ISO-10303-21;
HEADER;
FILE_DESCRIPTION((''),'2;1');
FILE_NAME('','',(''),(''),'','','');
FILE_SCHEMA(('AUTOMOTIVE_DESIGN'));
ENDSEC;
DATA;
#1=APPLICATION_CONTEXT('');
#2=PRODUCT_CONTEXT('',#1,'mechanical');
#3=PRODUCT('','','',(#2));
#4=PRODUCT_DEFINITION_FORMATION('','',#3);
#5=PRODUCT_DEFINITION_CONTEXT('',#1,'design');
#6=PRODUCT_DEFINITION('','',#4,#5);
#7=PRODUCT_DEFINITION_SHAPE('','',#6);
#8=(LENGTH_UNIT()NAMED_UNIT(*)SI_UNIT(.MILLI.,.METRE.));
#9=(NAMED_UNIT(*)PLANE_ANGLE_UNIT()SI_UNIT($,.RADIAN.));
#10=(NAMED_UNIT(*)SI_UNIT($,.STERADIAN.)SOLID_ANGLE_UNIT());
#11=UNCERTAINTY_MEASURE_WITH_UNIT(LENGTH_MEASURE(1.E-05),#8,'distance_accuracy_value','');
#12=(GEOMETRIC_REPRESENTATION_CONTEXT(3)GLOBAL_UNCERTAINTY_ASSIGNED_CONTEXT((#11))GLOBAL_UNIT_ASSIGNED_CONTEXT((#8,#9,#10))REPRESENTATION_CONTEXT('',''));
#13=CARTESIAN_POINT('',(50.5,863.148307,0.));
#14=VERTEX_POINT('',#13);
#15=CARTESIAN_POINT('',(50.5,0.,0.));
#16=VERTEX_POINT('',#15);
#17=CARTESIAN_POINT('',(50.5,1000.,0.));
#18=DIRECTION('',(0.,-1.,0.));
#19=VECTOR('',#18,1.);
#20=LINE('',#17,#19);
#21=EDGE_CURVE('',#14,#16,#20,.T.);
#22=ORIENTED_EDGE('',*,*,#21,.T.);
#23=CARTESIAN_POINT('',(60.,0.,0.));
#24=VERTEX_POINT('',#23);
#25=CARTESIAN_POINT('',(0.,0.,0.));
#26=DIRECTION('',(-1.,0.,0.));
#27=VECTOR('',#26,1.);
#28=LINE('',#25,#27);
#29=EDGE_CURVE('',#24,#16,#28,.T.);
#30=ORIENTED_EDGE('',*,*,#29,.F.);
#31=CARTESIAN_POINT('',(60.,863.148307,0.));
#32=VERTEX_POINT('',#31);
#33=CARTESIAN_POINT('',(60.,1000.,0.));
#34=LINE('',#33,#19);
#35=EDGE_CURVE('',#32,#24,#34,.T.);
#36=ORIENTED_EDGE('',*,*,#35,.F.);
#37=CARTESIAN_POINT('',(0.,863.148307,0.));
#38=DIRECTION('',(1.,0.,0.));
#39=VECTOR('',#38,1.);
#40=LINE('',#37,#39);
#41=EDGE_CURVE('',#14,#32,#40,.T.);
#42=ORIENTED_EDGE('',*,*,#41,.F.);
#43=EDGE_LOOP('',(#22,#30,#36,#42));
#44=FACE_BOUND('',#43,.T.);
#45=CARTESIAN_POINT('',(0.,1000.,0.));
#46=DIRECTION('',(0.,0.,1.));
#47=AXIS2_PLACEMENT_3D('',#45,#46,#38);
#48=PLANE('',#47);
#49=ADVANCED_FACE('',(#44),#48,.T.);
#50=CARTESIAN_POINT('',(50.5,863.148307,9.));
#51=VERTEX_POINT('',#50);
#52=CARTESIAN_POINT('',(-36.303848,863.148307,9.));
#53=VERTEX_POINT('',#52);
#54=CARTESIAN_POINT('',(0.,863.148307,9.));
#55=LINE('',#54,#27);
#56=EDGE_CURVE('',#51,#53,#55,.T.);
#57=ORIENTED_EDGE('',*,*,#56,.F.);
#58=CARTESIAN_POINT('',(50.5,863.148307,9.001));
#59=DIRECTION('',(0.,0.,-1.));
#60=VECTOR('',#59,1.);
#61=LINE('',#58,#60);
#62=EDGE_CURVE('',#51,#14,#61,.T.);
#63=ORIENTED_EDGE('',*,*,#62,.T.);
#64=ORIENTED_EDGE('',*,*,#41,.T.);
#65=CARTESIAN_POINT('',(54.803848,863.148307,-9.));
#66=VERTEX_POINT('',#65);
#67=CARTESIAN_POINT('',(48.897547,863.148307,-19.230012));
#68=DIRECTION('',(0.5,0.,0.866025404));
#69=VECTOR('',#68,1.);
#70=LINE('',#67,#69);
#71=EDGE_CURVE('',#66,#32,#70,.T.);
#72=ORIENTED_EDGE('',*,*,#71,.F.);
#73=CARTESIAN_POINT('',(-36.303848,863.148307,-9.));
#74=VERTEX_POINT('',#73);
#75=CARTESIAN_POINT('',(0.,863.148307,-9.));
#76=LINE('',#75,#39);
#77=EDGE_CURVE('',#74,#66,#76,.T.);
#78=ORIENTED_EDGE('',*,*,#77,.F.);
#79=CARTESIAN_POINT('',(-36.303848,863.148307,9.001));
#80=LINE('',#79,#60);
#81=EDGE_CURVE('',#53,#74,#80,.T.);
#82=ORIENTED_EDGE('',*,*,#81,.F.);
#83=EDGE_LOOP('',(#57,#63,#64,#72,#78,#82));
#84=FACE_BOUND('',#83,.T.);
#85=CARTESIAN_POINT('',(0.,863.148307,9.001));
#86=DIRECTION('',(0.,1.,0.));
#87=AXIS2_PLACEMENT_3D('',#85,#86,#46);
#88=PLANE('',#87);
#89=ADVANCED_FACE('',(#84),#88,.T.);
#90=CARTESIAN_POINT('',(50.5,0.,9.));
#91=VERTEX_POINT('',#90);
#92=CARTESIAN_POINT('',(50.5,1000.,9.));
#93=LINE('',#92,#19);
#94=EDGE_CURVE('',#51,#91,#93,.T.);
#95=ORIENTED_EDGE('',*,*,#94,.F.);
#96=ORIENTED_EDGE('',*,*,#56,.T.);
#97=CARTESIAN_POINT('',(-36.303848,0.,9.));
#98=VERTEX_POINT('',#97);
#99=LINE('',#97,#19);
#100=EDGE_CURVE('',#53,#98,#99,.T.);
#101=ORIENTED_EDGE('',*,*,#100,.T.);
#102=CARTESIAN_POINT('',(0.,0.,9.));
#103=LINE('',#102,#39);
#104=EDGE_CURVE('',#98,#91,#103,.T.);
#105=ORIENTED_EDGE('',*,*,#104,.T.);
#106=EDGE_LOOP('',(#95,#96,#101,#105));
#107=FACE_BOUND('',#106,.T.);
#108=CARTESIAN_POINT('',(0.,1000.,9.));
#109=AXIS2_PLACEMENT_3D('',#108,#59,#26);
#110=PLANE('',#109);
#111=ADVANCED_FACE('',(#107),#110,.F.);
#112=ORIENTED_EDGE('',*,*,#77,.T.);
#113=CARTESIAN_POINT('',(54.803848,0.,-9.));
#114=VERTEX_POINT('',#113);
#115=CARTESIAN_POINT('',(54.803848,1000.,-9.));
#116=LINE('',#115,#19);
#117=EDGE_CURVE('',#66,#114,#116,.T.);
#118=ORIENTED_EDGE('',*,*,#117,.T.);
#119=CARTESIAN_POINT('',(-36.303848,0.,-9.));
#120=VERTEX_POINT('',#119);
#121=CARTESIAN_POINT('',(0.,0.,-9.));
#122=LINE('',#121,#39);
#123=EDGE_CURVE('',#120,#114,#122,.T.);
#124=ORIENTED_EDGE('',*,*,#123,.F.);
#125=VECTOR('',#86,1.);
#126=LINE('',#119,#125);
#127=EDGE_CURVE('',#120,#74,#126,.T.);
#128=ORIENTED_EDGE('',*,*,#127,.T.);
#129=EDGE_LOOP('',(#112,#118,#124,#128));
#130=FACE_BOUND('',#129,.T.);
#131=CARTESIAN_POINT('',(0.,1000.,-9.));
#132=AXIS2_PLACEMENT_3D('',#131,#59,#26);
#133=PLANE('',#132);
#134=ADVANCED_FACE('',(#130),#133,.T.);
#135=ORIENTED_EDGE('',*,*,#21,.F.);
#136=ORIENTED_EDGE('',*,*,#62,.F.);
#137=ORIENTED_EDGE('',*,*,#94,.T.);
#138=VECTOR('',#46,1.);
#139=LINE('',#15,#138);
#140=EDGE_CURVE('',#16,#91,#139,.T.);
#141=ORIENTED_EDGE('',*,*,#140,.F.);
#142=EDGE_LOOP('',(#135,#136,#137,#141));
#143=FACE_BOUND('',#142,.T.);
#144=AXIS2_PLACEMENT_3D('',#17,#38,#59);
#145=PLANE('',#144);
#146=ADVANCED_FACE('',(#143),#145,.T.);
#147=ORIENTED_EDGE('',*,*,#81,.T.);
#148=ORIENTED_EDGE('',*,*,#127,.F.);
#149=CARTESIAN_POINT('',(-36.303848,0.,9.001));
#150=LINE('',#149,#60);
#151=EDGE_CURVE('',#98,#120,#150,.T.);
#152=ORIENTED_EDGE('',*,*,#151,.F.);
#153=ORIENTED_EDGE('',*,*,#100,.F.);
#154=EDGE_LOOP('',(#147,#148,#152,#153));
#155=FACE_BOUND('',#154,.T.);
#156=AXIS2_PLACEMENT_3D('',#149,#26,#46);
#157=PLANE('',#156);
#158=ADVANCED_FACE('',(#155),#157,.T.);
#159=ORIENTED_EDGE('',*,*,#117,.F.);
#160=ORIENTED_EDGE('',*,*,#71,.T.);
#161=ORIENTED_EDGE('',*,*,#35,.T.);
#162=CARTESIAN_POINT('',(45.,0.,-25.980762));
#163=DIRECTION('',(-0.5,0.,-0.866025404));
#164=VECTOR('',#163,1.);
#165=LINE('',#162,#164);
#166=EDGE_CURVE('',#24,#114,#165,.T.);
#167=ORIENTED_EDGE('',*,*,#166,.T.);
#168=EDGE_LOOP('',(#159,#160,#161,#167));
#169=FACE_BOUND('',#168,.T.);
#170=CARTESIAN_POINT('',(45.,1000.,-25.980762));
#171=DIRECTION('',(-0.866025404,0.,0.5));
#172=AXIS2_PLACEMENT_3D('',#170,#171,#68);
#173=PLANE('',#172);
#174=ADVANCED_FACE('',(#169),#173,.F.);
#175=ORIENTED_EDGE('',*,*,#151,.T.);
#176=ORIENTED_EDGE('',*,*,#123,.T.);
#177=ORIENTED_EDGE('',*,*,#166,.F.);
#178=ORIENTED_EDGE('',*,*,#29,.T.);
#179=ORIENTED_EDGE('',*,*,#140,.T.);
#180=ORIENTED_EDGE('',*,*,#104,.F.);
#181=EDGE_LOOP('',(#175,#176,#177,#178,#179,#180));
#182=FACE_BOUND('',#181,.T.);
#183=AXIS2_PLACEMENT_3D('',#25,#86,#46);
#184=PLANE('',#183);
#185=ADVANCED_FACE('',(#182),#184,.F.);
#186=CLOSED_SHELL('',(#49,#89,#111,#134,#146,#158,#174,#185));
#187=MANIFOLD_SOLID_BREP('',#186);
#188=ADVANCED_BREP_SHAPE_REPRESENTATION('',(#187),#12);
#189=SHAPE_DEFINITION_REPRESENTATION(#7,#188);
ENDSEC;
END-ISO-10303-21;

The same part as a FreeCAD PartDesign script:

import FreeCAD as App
import Part
import Sketcher
from FreeCAD import Vector
Q = App.Units.Quantity

doc = App.newDocument("Part")
body = doc.addObject("PartDesign::Body", "Body")

# Sketch on XZ plane
sketch1 = body.newObject("Sketcher::SketchObject", "Sketch")
sketch1.AttachmentSupport = (doc.getObject("XZ_Plane"), [""])
sketch1.MapMode = "FlatFace"
sketch1.addGeometry(Part.LineSegment(Vector(-41.5, 0, 0), Vector(-60, 0, 0)), False)
sketch1.addGeometry(Part.LineSegment(Vector(-60, 0, 0), Vector(-60, 9, 0)), False)
sketch1.addGeometry(Part.LineSegment(Vector(-60, 9, 0), Vector(50.5, 9, 0)), False)
sketch1.addGeometry(Part.LineSegment(Vector(50.5, 9, 0), Vector(50.5, 0, 0)), False)
sketch1.addGeometry(Part.LineSegment(Vector(50.5, 0, 0), Vector(60, 0, 0)), False)
sketch1.addGeometry(Part.LineSegment(Vector(60, 0, 0), Vector(54.803848, -9, 0)), False)
sketch1.addGeometry(Part.LineSegment(Vector(54.803848, -9, 0), Vector(-36.303848, -9, 0)), False)
sketch1.addGeometry(Part.LineSegment(Vector(-36.303848, -9, 0), Vector(-41.5, 0, 0)), False)
sketch1.addConstraint(Sketcher.Constraint("Coincident", 0, 2, 1, 1))
sketch1.addConstraint(Sketcher.Constraint("Coincident", 1, 2, 2, 1))
sketch1.addConstraint(Sketcher.Constraint("Coincident", 2, 2, 3, 1))
sketch1.addConstraint(Sketcher.Constraint("Coincident", 3, 2, 4, 1))
sketch1.addConstraint(Sketcher.Constraint("Coincident", 4, 2, 5, 1))
sketch1.addConstraint(Sketcher.Constraint("Coincident", 5, 2, 6, 1))
sketch1.addConstraint(Sketcher.Constraint("Coincident", 6, 2, 7, 1))
sketch1.addConstraint(Sketcher.Constraint("Coincident", 7, 2, 0, 1))
sketch1.addConstraint(Sketcher.Constraint("Horizontal", 0))
sketch1.addConstraint(Sketcher.Constraint("Vertical", 1))
sketch1.addConstraint(Sketcher.Constraint("Horizontal", 2))
sketch1.addConstraint(Sketcher.Constraint("Vertical", 3))
sketch1.addConstraint(Sketcher.Constraint("Horizontal", 4))
sketch1.addConstraint(Sketcher.Constraint("Horizontal", 6))
sketch1.addConstraint(Sketcher.Constraint("Symmetric", 0, 2, 4, 2, -1, 1))
sketch1.addConstraint(Sketcher.Constraint("PointOnObject", 0, 2, -1))
sketch1.addConstraint(Sketcher.Constraint("Equal", 5, 7))
sketch1.addConstraint(Sketcher.Constraint("DistanceY", 1, 1, 1, 2, Q("9 mm")))
sketch1.addConstraint(Sketcher.Constraint("Angle", 5, Q("-120 deg")))
sketch1.addConstraint(Sketcher.Constraint("DistanceX", 0, 2, 0, 1, Q("18.5 mm")))
sketch1.addConstraint(Sketcher.Constraint("DistanceX", 2, 1, 2, 2, Q("110.5 mm")))
sketch1.addConstraint(Sketcher.Constraint("DistanceX", 4, 1, 4, 2, Q("9.5 mm")))
sketch1.addConstraint(Sketcher.Constraint("DistanceY", 5, 2, -1, 1, Q("9 mm")))
pad1 = body.newObject("PartDesign::Pad", "Pad")
pad1.Profile = sketch1
pad1.Length = 1000
pad1.Reversed = True

# Sketch on XY plane
sketch2 = body.newObject("Sketcher::SketchObject", "Sketch001")
sketch2.AttachmentSupport = (doc.getObject("XY_Plane"), [""])
sketch2.MapMode = "FlatFace"
sketch2.AttachmentOffset = App.Placement(Vector(0, 0, -9), App.Rotation())
sketch2.addGeometry(Part.LineSegment(Vector(60, 1000, 0), Vector(60, 863.148307, 0)), False)
sketch2.addGeometry(Part.LineSegment(Vector(60, 863.148307, 0), Vector(54.803848, 863.148307, 0)), False)
sketch2.addGeometry(Part.LineSegment(Vector(54.803848, 863.148307, 0), Vector(54.803848, 1000, 0)), False)
sketch2.addGeometry(Part.LineSegment(Vector(54.803848, 1000, 0), Vector(60, 1000, 0)), False)
sketch2.addConstraint(Sketcher.Constraint("Coincident", 0, 2, 1, 1))
sketch2.addConstraint(Sketcher.Constraint("Coincident", 1, 2, 2, 1))
sketch2.addConstraint(Sketcher.Constraint("Coincident", 2, 2, 3, 1))
sketch2.addConstraint(Sketcher.Constraint("Coincident", 3, 2, 0, 1))
sketch2.addConstraint(Sketcher.Constraint("Vertical", 0))
sketch2.addConstraint(Sketcher.Constraint("Horizontal", 1))
sketch2.addConstraint(Sketcher.Constraint("Vertical", 2))
sketch2.addConstraint(Sketcher.Constraint("Horizontal", 3))
sketch2.addConstraint(Sketcher.Constraint("DistanceX", -1, 1, 0, 2, Q("60 mm")))
sketch2.addConstraint(Sketcher.Constraint("DistanceY", -1, 1, 2, 2, Q("1000 mm")))
sketch2.addConstraint(Sketcher.Constraint("DistanceX", 1, 2, 1, 1, Q("5.196152 mm")))
sketch2.addConstraint(Sketcher.Constraint("DistanceY", 0, 2, 0, 1, Q("136.851693 mm")))
pocket1 = body.newObject("PartDesign::Pocket", "Pocket")
pocket1.Profile = sketch2
pocket1.Length = 9
pocket1.Reversed = True

# Sketch on XY plane
sketch3 = body.newObject("Sketcher::SketchObject", "Sketch002")
sketch3.AttachmentSupport = (doc.getObject("XY_Plane"), [""])
sketch3.MapMode = "FlatFace"
sketch3.AttachmentOffset = App.Placement(Vector(0, 0, -9), App.Rotation())
sketch3.addGeometry(Part.LineSegment(Vector(54.803848, 1000, 0), Vector(54.803848, 863.148307, 0)), False)
sketch3.addGeometry(Part.LineSegment(Vector(54.803848, 863.148307, 0), Vector(-36.303848, 863.148307, 0)), False)
sketch3.addGeometry(Part.LineSegment(Vector(-36.303848, 863.148307, 0), Vector(-36.303848, 1000, 0)), False)
sketch3.addGeometry(Part.LineSegment(Vector(-36.303848, 1000, 0), Vector(54.803848, 1000, 0)), False)
sketch3.addConstraint(Sketcher.Constraint("Coincident", 0, 2, 1, 1))
sketch3.addConstraint(Sketcher.Constraint("Coincident", 1, 2, 2, 1))
sketch3.addConstraint(Sketcher.Constraint("Coincident", 2, 2, 3, 1))
sketch3.addConstraint(Sketcher.Constraint("Coincident", 3, 2, 0, 1))
sketch3.addConstraint(Sketcher.Constraint("Vertical", 0))
sketch3.addConstraint(Sketcher.Constraint("Horizontal", 1))
sketch3.addConstraint(Sketcher.Constraint("Vertical", 2))
sketch3.addConstraint(Sketcher.Constraint("Horizontal", 3))
sketch3.addConstraint(Sketcher.Constraint("DistanceY", -1, 1, 2, 2, Q("1000 mm")))
sketch3.addConstraint(Sketcher.Constraint("DistanceX", 1, 2, 1, 1, Q("91.107695 mm")))
sketch3.addConstraint(Sketcher.Constraint("DistanceY", 0, 2, 0, 1, Q("136.851693 mm")))
sketch3.addConstraint(Sketcher.Constraint("DistanceX", -1, 1, 0, 2, Q("54.803848 mm")))
pocket2 = body.newObject("PartDesign::Pocket", "Pocket001")
pocket2.Profile = sketch3
pocket2.Type = "UpToFirst"
pocket2.Reversed = True

# Sketch on XY plane
sketch4 = body.newObject("Sketcher::SketchObject", "Sketch003")
sketch4.AttachmentSupport = (doc.getObject("XY_Plane"), [""])
sketch4.MapMode = "FlatFace"
sketch4.AttachmentOffset = App.Placement(Vector(0, 0, -9), App.Rotation())
sketch4.addGeometry(Part.LineSegment(Vector(-36.303848, 1000, 0), Vector(-36.303848, 863.148307, 0)), False)
sketch4.addGeometry(Part.LineSegment(Vector(-36.303848, 863.148307, 0), Vector(-60, 863.148307, 0)), False)
sketch4.addGeometry(Part.LineSegment(Vector(-60, 863.148307, 0), Vector(-60, 1000, 0)), False)
sketch4.addGeometry(Part.LineSegment(Vector(-60, 1000, 0), Vector(-36.303848, 1000, 0)), False)
sketch4.addConstraint(Sketcher.Constraint("Coincident", 0, 2, 1, 1))
sketch4.addConstraint(Sketcher.Constraint("Coincident", 1, 2, 2, 1))
sketch4.addConstraint(Sketcher.Constraint("Coincident", 2, 2, 3, 1))
sketch4.addConstraint(Sketcher.Constraint("Coincident", 3, 2, 0, 1))
sketch4.addConstraint(Sketcher.Constraint("Vertical", 0))
sketch4.addConstraint(Sketcher.Constraint("Horizontal", 1))
sketch4.addConstraint(Sketcher.Constraint("Vertical", 2))
sketch4.addConstraint(Sketcher.Constraint("Horizontal", 3))
sketch4.addConstraint(Sketcher.Constraint("DistanceX", 1, 2, -1, 1, Q("60 mm")))
sketch4.addConstraint(Sketcher.Constraint("DistanceY", -1, 1, 2, 2, Q("1000 mm")))
sketch4.addConstraint(Sketcher.Constraint("DistanceX", 1, 2, 1, 1, Q("23.696152 mm")))
sketch4.addConstraint(Sketcher.Constraint("DistanceY", 0, 2, 0, 1, Q("136.851693 mm")))
pocket3 = body.newObject("PartDesign::Pocket", "Pocket002")
pocket3.Profile = sketch4
pocket3.Length = 18
pocket3.Reversed = True

# Sketch on XY plane
sketch5 = body.newObject("Sketcher::SketchObject", "Sketch004")
sketch5.AttachmentSupport = (doc.getObject("XY_Plane"), [""])
sketch5.MapMode = "FlatFace"
sketch5.AttachmentOffset = App.Placement(Vector(0, 0, -9), App.Rotation())
sketch5.addGeometry(Part.LineSegment(Vector(-36.303848, 863.148307, 0), Vector(-36.303848, 0, 0)), False)
sketch5.addGeometry(Part.LineSegment(Vector(-36.303848, 0, 0), Vector(-60, 0, 0)), False)
sketch5.addGeometry(Part.LineSegment(Vector(-60, 0, 0), Vector(-60, 863.148307, 0)), False)
sketch5.addGeometry(Part.LineSegment(Vector(-60, 863.148307, 0), Vector(-36.303848, 863.148307, 0)), False)
sketch5.addConstraint(Sketcher.Constraint("Coincident", 0, 2, 1, 1))
sketch5.addConstraint(Sketcher.Constraint("Coincident", 1, 2, 2, 1))
sketch5.addConstraint(Sketcher.Constraint("Coincident", 2, 2, 3, 1))
sketch5.addConstraint(Sketcher.Constraint("Coincident", 3, 2, 0, 1))
sketch5.addConstraint(Sketcher.Constraint("Vertical", 0))
sketch5.addConstraint(Sketcher.Constraint("Horizontal", 1))
sketch5.addConstraint(Sketcher.Constraint("Vertical", 2))
sketch5.addConstraint(Sketcher.Constraint("Horizontal", 3))
sketch5.addConstraint(Sketcher.Constraint("PointOnObject", 0, 2, -1))
sketch5.addConstraint(Sketcher.Constraint("DistanceX", 1, 2, -1, 1, Q("60 mm")))
sketch5.addConstraint(Sketcher.Constraint("DistanceX", 1, 2, 1, 1, Q("23.696152 mm")))
sketch5.addConstraint(Sketcher.Constraint("DistanceY", 0, 2, 0, 1, Q("863.148307 mm")))
pocket4 = body.newObject("PartDesign::Pocket", "Pocket003")
pocket4.Profile = sketch5
pocket4.Length = 18
pocket4.Reversed = True

doc.recompute()
